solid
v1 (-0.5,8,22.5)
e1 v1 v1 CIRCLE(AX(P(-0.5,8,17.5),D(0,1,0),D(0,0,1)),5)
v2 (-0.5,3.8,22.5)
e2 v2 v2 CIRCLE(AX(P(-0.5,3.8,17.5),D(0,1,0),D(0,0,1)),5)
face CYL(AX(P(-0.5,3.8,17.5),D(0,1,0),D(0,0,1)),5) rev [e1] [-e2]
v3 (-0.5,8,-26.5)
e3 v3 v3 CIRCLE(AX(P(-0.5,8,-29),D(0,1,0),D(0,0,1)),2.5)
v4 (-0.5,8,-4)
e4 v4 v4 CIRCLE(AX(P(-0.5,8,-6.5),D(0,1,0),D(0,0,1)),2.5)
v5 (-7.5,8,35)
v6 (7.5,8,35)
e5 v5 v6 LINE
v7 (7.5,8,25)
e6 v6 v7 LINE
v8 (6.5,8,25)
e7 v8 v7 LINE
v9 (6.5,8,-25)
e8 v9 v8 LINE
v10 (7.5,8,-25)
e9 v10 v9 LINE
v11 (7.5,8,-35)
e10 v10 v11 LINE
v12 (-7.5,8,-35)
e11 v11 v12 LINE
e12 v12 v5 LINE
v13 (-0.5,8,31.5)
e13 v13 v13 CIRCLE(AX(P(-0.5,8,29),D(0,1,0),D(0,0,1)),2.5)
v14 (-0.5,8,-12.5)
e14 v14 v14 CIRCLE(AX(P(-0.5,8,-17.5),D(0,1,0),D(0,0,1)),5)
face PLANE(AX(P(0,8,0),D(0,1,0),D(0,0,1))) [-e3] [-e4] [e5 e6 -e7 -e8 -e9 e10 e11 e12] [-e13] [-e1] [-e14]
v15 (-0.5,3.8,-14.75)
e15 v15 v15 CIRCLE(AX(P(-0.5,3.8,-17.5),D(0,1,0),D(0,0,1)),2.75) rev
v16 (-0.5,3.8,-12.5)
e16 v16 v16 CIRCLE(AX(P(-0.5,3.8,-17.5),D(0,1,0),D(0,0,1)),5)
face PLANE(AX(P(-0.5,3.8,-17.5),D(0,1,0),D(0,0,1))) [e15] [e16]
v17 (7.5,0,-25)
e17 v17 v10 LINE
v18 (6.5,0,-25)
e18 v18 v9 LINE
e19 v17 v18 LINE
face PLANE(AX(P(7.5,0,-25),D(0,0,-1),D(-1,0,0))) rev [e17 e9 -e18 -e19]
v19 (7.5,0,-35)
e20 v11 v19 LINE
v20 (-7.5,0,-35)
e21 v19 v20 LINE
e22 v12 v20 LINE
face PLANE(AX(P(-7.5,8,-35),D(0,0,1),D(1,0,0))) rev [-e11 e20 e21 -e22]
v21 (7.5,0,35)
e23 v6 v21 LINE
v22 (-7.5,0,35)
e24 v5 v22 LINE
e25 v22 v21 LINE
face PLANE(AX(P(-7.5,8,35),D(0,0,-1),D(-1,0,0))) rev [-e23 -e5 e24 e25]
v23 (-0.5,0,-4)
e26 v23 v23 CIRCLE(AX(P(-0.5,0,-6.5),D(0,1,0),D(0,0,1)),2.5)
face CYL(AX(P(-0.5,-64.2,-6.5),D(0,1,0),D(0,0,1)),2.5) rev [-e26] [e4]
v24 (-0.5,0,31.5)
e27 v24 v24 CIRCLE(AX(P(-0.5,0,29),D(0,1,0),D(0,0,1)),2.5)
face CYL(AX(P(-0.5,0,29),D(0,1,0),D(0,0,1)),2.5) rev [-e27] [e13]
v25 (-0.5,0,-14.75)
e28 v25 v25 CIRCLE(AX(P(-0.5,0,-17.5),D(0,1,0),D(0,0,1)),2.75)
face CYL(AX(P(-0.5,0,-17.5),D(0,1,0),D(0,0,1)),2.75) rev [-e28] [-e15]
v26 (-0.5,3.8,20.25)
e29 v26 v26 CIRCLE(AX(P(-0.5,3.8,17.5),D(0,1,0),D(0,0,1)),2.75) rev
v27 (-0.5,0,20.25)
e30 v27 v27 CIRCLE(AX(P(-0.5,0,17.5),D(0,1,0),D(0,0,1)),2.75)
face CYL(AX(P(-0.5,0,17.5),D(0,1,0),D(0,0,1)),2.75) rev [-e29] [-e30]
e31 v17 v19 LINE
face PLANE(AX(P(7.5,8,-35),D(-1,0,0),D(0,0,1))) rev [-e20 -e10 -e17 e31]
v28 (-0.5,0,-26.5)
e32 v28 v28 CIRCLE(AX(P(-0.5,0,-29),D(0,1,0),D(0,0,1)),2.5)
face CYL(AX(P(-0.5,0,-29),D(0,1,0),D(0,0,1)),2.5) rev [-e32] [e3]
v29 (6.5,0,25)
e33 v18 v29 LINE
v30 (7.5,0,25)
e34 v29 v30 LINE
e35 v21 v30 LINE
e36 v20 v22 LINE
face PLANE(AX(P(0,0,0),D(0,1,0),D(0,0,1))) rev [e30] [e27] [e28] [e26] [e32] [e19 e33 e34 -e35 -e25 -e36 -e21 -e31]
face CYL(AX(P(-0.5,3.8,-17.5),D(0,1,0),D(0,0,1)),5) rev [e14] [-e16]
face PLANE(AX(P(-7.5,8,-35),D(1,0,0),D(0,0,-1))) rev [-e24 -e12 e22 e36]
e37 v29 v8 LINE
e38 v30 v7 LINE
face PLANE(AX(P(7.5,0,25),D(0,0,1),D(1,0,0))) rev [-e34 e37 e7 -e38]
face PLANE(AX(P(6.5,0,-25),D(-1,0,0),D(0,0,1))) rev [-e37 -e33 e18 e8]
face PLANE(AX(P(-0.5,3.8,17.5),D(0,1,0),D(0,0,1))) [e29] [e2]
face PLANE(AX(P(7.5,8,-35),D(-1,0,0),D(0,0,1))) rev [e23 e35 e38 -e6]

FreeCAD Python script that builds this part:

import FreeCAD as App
import Part
import Sketcher


def add_polygon(sketch, points):
    """Adds a closed chain of lines whose ends are joined by coincident constraints."""
    first, n = sketch.GeometryCount, len(points)
    for a, b in zip(points, points[1:] + points[:1]):
        sketch.addGeometry(Part.LineSegment(App.Vector(*a, 0), App.Vector(*b, 0)), False)
    for i in range(n):
        sketch.addConstraint(Sketcher.Constraint("Coincident", first + i, 2, first + (i + 1) % n, 1))

doc = App.newDocument("Part")
body = doc.addObject("PartDesign::Body", "Body")

# Sketch on XZ plane
sketch1 = body.newObject("Sketcher::SketchObject", "Sketch")
sketch1.AttachmentSupport = (doc.getObject("XZ_Plane"), [""])
sketch1.MapMode = "FlatFace"
add_polygon(sketch1, [(-8, -35), (-8, 35), (8, 35), (8, -35)])  # lines 0-3
sketch1.addConstraint([
    Sketcher.Constraint("Vertical", 0),
    Sketcher.Constraint("Horizontal", 1),
    Sketcher.Constraint("Vertical", 2),
    Sketcher.Constraint("Horizontal", 3),
    Sketcher.Constraint("Symmetric", 0, 2, 2, 2, -1, 1),
    Sketcher.Constraint("DistanceX", 1, 1, 1, 2, 15.0),
    Sketcher.Constraint("DistanceY", 0, 1, 0, 2, 70.0),
])
pad1 = body.newObject("PartDesign::Pad", "Pad")
pad1.Profile = sketch1
pad1.Length = 8
pad1.Reversed = True

# Sketch on XZ plane
sketch2 = body.newObject("Sketcher::SketchObject", "Sketch001")
sketch2.AttachmentSupport = (doc.getObject("XZ_Plane"), [""])
sketch2.MapMode = "FlatFace"
sketch2.AttachmentOffset = App.Placement(App.Vector(0, 0, -8), App.Rotation())
add_polygon(sketch2, [(6.5, -25), (6.5, 25), (7.5, 25), (7.5, -25)])  # lines 0-3
sketch2.addConstraint([
    Sketcher.Constraint("Vertical", 0),
    Sketcher.Constraint("Horizontal", 1),
    Sketcher.Constraint("Vertical", 2),
    Sketcher.Constraint("Horizontal", 3),
    Sketcher.Constraint("DistanceX", 1, 1, 1, 2, 1.0),
    Sketcher.Constraint("DistanceY", 0, 1, 0, 2, 50.0),
    Sketcher.Constraint("DistanceY", -1, 1, 0, 2, 25.0),
    Sketcher.Constraint("DistanceX", -1, 1, 0, 2, 6.5),
])
pocket1 = body.newObject("PartDesign::Pocket", "Pocket")
pocket1.Profile = sketch2
pocket1.Length = 8
pocket1.Reversed = True

# Sketch on XZ plane
sketch3 = body.newObject("Sketcher::SketchObject", "Sketch002")
sketch3.AttachmentSupport = (doc.getObject("XZ_Plane"), [""])
sketch3.MapMode = "FlatFace"
sketch3.AttachmentOffset = App.Placement(App.Vector(0, 0, -8), App.Rotation())
sketch3.addGeometry([
    Part.Circle(App.Vector(-0.5, 29, 0), App.Vector(0, 0, 1), 2.5),
    Part.Circle(App.Vector(-0.5, -29, 0), App.Vector(0, 0, 1), 2.5),
], False)
sketch3.addConstraint([
    Sketcher.Constraint("Equal", 0, 1),
    Sketcher.Constraint("Symmetric", 0, 3, 1, 3, -1),
    Sketcher.Constraint("Diameter", 0, 5.0),
    Sketcher.Constraint("DistanceY", -1, 1, 0, 3, 29.0),
    Sketcher.Constraint("DistanceX", 0, 3, -1, 1, 0.5),
])
pocket2 = body.newObject("PartDesign::Pocket", "Pocket001")
pocket2.Profile = sketch3
pocket2.Length = 8
pocket2.Reversed = True

# Sketch on XZ plane
sketch4 = body.newObject("Sketcher::SketchObject", "Sketch003")
sketch4.AttachmentSupport = (doc.getObject("XZ_Plane"), [""])
sketch4.MapMode = "FlatFace"
sketch4.AttachmentOffset = App.Placement(App.Vector(0, 0, -8), App.Rotation())
sketch4.addGeometry([
    Part.Circle(App.Vector(-0.5, 17.5, 0), App.Vector(0, 0, 1), 2.8),
    Part.Circle(App.Vector(-0.5, -17.5, 0), App.Vector(0, 0, 1), 2.8),
], False)
sketch4.addConstraint([
    Sketcher.Constraint("Equal", 0, 1),
    Sketcher.Constraint("Symmetric", 0, 3, 1, 3, -1),
    Sketcher.Constraint("Diameter", 0, 5.5),
    Sketcher.Constraint("DistanceY", 1, 3, 0, 3, 35.0),
    Sketcher.Constraint("DistanceX", 0, 3, -1, 1, 0.5),
])
pocket3 = body.newObject("PartDesign::Pocket", "Pocket002")
pocket3.Profile = sketch4
pocket3.Length = 8
pocket3.Reversed = True

# Sketch on XZ plane
sketch5 = body.newObject("Sketcher::SketchObject", "Sketch004")
sketch5.AttachmentSupport = (doc.getObject("XZ_Plane"), [""])
sketch5.MapMode = "FlatFace"
sketch5.AttachmentOffset = App.Placement(App.Vector(0, 0, -8), App.Rotation())
sketch5.addGeometry([
    Part.Circle(App.Vector(0, -18, 0), App.Vector(0, 0, 1), 5),
    Part.Circle(App.Vector(0, 18, 0), App.Vector(0, 0, 1), 5),
], False)
sketch5.addConstraint([
    Sketcher.Constraint("Equal", 0, 1),
    Sketcher.Constraint("Symmetric", 0, 3, 1, 3, -1),
    Sketcher.Constraint("Diameter", 0, 10.0),
    Sketcher.Constraint("DistanceY", 0, 3, 1, 3, 35.0),
    Sketcher.Constraint("DistanceX", 0, 3, -1, 1, 0.5),
])
pocket4 = body.newObject("PartDesign::Pocket", "Pocket003")
pocket4.Profile = sketch5
pocket4.Length = 4.2
pocket4.Reversed = True

# Sketch on XZ plane
sketch6 = body.newObject("Sketcher::SketchObject", "Sketch005")
sketch6.AttachmentSupport = (doc.getObject("XZ_Plane"), [""])
sketch6.MapMode = "FlatFace"
sketch6.AttachmentOffset = App.Placement(App.Vector(0, 0, -8), App.Rotation())
sketch6.addGeometry(Part.Circle(App.Vector(-0.5, -6.5, 0), App.Vector(0, 0, 1), 2.5), False)
sketch6.addConstraint([
    Sketcher.Constraint("Diameter", 0, 5.0),
    Sketcher.Constraint("DistanceX", 0, 3, -1, 1, 0.5),
    Sketcher.Constraint("DistanceY", 0, 3, -1, 1, 6.5),
])
pocket5 = body.newObject("PartDesign::Pocket", "Pocket004")
pocket5.Profile = sketch6
pocket5.Length = 72.2
pocket5.Reversed = True

doc.recompute()
